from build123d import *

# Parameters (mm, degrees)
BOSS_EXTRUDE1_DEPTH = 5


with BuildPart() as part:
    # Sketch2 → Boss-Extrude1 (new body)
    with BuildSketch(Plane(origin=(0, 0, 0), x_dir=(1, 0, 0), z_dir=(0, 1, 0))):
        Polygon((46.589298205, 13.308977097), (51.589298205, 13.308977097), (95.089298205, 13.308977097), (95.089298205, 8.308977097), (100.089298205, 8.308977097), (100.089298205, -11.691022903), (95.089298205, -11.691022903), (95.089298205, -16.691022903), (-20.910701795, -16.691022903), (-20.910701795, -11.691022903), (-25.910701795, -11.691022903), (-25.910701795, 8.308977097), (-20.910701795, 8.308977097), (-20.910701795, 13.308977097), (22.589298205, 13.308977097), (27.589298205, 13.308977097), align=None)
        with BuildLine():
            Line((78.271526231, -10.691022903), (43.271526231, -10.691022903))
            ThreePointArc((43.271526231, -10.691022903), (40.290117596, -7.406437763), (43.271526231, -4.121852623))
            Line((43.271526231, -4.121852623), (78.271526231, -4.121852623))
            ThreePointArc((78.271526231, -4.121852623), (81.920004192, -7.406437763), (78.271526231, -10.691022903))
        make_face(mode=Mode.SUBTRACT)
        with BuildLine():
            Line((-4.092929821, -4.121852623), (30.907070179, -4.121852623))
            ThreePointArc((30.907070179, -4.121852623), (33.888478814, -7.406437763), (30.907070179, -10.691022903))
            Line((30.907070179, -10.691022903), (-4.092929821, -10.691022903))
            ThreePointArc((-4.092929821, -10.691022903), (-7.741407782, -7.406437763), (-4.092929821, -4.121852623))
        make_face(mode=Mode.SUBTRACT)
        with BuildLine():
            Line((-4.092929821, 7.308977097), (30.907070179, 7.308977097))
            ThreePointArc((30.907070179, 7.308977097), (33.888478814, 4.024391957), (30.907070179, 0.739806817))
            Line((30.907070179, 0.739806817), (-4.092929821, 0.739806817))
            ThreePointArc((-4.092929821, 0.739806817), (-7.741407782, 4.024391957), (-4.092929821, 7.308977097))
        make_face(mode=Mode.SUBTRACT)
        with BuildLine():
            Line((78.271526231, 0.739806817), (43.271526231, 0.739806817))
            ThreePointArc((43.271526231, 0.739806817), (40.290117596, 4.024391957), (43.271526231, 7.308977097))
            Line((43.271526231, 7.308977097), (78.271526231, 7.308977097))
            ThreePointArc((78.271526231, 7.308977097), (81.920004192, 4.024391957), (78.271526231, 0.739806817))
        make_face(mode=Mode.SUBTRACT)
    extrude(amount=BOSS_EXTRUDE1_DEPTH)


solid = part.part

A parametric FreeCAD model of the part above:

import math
import FreeCAD as App
import Part
import Sketcher

V = App.Vector


def add_polygon(sketch, points):
    """Adds a closed chain of lines whose ends are joined by coincident constraints."""
    first, n = sketch.GeometryCount, len(points)
    for a, b in zip(points, points[1:] + points[:1]):
        sketch.addGeometry(Part.LineSegment(App.Vector(*a, 0), App.Vector(*b, 0)), False)
    for i in range(n):
        sketch.addConstraint(Sketcher.Constraint("Coincident", first + i, 2, first + (i + 1) % n, 1))

doc = App.newDocument("Part")
params = doc.addObject("Spreadsheet::Sheet", "Params")
for row, (alias, value) in enumerate([
    ("sketch1_radius", "3.3 mm"),
    ("sketch1_width", "116 mm"),
    ("sketch1_width2", "5 mm"),
    ("sketch1_width3", "35 mm"),
    ("sketch1_height", "20 mm"),
    ("pad1_length", "5 mm"),
], start=1):
    params.set(f"A{row}", alias)
    params.set(f"B{row}", "=" + value)
    params.setAlias(f"B{row}", alias)

body = doc.addObject("PartDesign::Body", "Body")

# Sketch on XZ plane
sketch1 = doc.addObject("Sketcher::SketchObject", "Sketch")
body.addObject(sketch1)
sketch1.AttachmentSupport = (doc.XZ_Plane, [""])
sketch1.MapMode = "FlatFace"
add_polygon(sketch1, [(95.089298, -13.308977), (-20.910702, -13.308977), (-20.910702, -8.308977), (-25.910702, -8.308977), (-25.910702, 11.691023), (-20.910702, 11.691023), (-20.910702, 16.691023), (95.089298, 16.691023), (95.089298, 11.691023), (100.089298, 11.691023), (100.089298, -8.308977), (95.089298, -8.308977)])  # lines 0-11
sketch1.addGeometry(Part.LineSegment(V(78.271526, 10.691023, 0), V(43.271526, 10.691023, 0)), False)  # 12
sketch1.addGeometry(Part.ArcOfCircle(Part.Circle(V(43.590118, 7.406438, 0), V(0, 0, 1), 3.3), math.radians(95.540126), math.radians(264.459874)), False)  # 13
sketch1.addGeometry(Part.LineSegment(V(43.271526, 4.121853, 0), V(78.271526, 4.121853, 0)), False)  # 14
sketch1.addGeometry(Part.ArcOfCircle(Part.Circle(V(78.617272, 7.406438, 0), V(0, 0, 1), 3.302732), math.radians(-96.009006), math.radians(96.009006)), False)  # 15
sketch1.addGeometry(Part.LineSegment(V(-4.09293, 4.121853, 0), V(30.90707, 4.121853, 0)), False)  # 16
sketch1.addGeometry(Part.ArcOfCircle(Part.Circle(V(30.588479, 7.406438, 0), V(0, 0, 1), 3.3), math.radians(-84.459874), math.radians(84.459874)), False)  # 17
sketch1.addGeometry(Part.LineSegment(V(30.90707, 10.691023, 0), V(-4.09293, 10.691023, 0)), False)  # 18
sketch1.addGeometry(Part.ArcOfCircle(Part.Circle(V(-4.438676, 7.406438, 0), V(0, 0, 1), 3.302732), math.radians(83.990994), math.radians(276.009006)), False)  # 19
sketch1.addGeometry(Part.LineSegment(V(78.271526, -0.739807, 0), V(43.271526, -0.739807, 0)), False)  # 20
sketch1.addGeometry(Part.ArcOfCircle(Part.Circle(V(43.590118, -4.024392, 0), V(0, 0, 1), 3.3), math.radians(95.540126), math.radians(264.459874)), False)  # 21
sketch1.addGeometry(Part.LineSegment(V(43.271526, -7.308977, 0), V(78.271526, -7.308977, 0)), False)  # 22
sketch1.addGeometry(Part.ArcOfCircle(Part.Circle(V(78.617272, -4.024392, 0), V(0, 0, 1), 3.302732), math.radians(-96.009006), math.radians(96.009006)), False)  # 23
sketch1.addGeometry(Part.LineSegment(V(-4.09293, -7.308977, 0), V(30.90707, -7.308977, 0)), False)  # 24
sketch1.addGeometry(Part.ArcOfCircle(Part.Circle(V(30.588479, -4.024392, 0), V(0, 0, 1), 3.3), math.radians(-84.459874), math.radians(84.459874)), False)  # 25
sketch1.addGeometry(Part.LineSegment(V(30.90707, -0.739807, 0), V(-4.09293, -0.739807, 0)), False)  # 26
sketch1.addGeometry(Part.ArcOfCircle(Part.Circle(V(-4.438676, -4.024392, 0), V(0, 0, 1), 3.302732), math.radians(83.990994), math.radians(276.009006)), False)  # 27
sketch1.addConstraint([
    Sketcher.Constraint("Coincident", 12, 2, 13, 1),
    Sketcher.Constraint("Coincident", 13, 2, 14, 1),
    Sketcher.Constraint("Coincident", 14, 2, 15, 1),
    Sketcher.Constraint("Coincident", 15, 2, 12, 1),
    Sketcher.Constraint("Coincident", 16, 2, 17, 1),
    Sketcher.Constraint("Coincident", 17, 2, 18, 1),
    Sketcher.Constraint("Coincident", 18, 2, 19, 1),
    Sketcher.Constraint("Coincident", 19, 2, 16, 1),
    Sketcher.Constraint("Coincident", 20, 2, 21, 1),
    Sketcher.Constraint("Coincident", 21, 2, 22, 1),
    Sketcher.Constraint("Coincident", 22, 2, 23, 1),
    Sketcher.Constraint("Coincident", 23, 2, 20, 1),
    Sketcher.Constraint("Coincident", 24, 2, 25, 1),
    Sketcher.Constraint("Coincident", 25, 2, 26, 1),
    Sketcher.Constraint("Coincident", 26, 2, 27, 1),
    Sketcher.Constraint("Coincident", 27, 2, 24, 1),
    Sketcher.Constraint("Horizontal", 0),
    Sketcher.Constraint("Vertical", 1),
    Sketcher.Constraint("Horizontal", 2),
    Sketcher.Constraint("Vertical", 3),
    Sketcher.Constraint("Horizontal", 4),
    Sketcher.Constraint("Vertical", 5),
    Sketcher.Constraint("Horizontal", 6),
    Sketcher.Constraint("Vertical", 7),
    Sketcher.Constraint("Horizontal", 8),
    Sketcher.Constraint("Vertical", 9),
    Sketcher.Constraint("Horizontal", 10),
    Sketcher.Constraint("Vertical", 11),
    Sketcher.Constraint("Horizontal", 12),
    Sketcher.Constraint("Horizontal", 14),
    Sketcher.Constraint("Horizontal", 16),
    Sketcher.Constraint("Horizontal", 18),
    Sketcher.Constraint("Horizontal", 20),
    Sketcher.Constraint("Horizontal", 22),
    Sketcher.Constraint("Horizontal", 24),
    Sketcher.Constraint("Horizontal", 26),
    Sketcher.Constraint("Equal", 13, 17),
    Sketcher.Constraint("Equal", 15, 19),
    Sketcher.Constraint("Equal", 17, 21),
    Sketcher.Constraint("Equal", 19, 23),
    Sketcher.Constraint("Equal", 21, 25),
    Sketcher.Constraint("Equal", 23, 27),
    Sketcher.Constraint("Horizontal", 13, 3, 15, 3),
    Sketcher.Constraint("Horizontal", 15, 3, 17, 3),
    Sketcher.Constraint("Horizontal", 17, 3, 19, 3),
    Sketcher.Constraint("Horizontal", 21, 3, 23, 3),
    Sketcher.Constraint("Horizontal", 23, 3, 25, 3),
    Sketcher.Constraint("Horizontal", 25, 3, 27, 3),
    Sketcher.Constraint("Horizontal", 4, 2, 7, 2),
    Sketcher.Constraint("Horizontal", 2, 2, 9, 2),
    Sketcher.Constraint("Horizontal", 14, 2, 16, 2),
    Sketcher.Constraint("Horizontal", 15, 2, 17, 2),
    Sketcher.Constraint("Horizontal", 22, 2, 24, 2),
    Sketcher.Constraint("Horizontal", 23, 2, 25, 2),
    Sketcher.Constraint("Vertical", 13, 3, 21, 3),
    Sketcher.Constraint("Vertical", 15, 3, 23, 3),
    Sketcher.Constraint("Vertical", 17, 3, 25, 3),
    Sketcher.Constraint("Vertical", 19, 3, 27, 3),
    Sketcher.Constraint("Vertical", 1, 2, 4, 2),
    Sketcher.Constraint("Vertical", 7, 2, 10, 2),
    Sketcher.Constraint("Vertical", 12, 2, 13, 2),
    Sketcher.Constraint("Vertical", 13, 2, 20, 2),
    Sketcher.Constraint("Vertical", 20, 2, 21, 2),
    Sketcher.Constraint("Equal", 4, 8),
    Sketcher.Constraint("Equal", 14, 16),
    Sketcher.Constraint("Equal", 10, 1),
    Sketcher.Constraint("Equal", 1, 5),
    Sketcher.Constraint("Radius", 13, 3.3),
    Sketcher.Constraint("DistanceX", 0, 2, 0, 1, 116.0),
    Sketcher.Constraint("DistanceX", 2, 2, 2, 1, 5.0),
    Sketcher.Constraint("DistanceX", 12, 2, 12, 1, 35.0),
    Sketcher.Constraint("DistanceY", 3, 1, 3, 2, 20.0),
    Sketcher.Constraint("DistanceY", 15, 2, 7, 2, 1.0),
    Sketcher.Constraint("DistanceY", 10, 2, 22, 2, 1.0),
    Sketcher.Constraint("Radius", 15, 3.302732),
    Sketcher.Constraint("DistanceX", 0, 2, -1, 1, 20.910702),
    Sketcher.Constraint("DistanceX", -1, 1, 17, 3, 30.588479),
    Sketcher.Constraint("DistanceY", 21, 3, -1, 1, 4.024392),
    Sketcher.Constraint("DistanceX", -1, 1, 16, 2, 30.90707),
    Sketcher.Constraint("DistanceX", 17, 3, 13, 3, 13.001639),
])
sketch1.setExpression("Constraints[79]", "Params.sketch1_radius")
sketch1.setExpression("Constraints[80]", "Params.sketch1_width")
sketch1.setExpression("Constraints[81]", "Params.sketch1_width2")
sketch1.setExpression("Constraints[82]", "Params.sketch1_width3")
sketch1.setExpression("Constraints[83]", "Params.sketch1_height")
pad1 = doc.addObject("PartDesign::Pad", "Pad")
body.addObject(pad1)
pad1.Profile = sketch1
pad1.setExpression("Length", "Params.pad1_length")
pad1.Reversed = True

doc.recompute()
